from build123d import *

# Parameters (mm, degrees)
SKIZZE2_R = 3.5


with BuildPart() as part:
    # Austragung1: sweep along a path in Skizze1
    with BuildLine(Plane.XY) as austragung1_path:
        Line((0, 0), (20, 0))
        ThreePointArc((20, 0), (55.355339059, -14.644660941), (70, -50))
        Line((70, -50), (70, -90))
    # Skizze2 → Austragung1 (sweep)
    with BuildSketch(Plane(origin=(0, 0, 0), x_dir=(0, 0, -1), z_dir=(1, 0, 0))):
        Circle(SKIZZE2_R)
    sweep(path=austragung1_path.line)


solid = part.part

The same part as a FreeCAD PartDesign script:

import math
import FreeCAD as App
import Part
import Sketcher

V = App.Vector

doc = App.newDocument("Part")
body = doc.addObject("PartDesign::Body", "Body")

# Sketch on YZ plane
sketch1 = body.newObject("Sketcher::SketchObject", "Sketch")
sketch1.AttachmentSupport = (doc.getObject("YZ_Plane"), [""])
sketch1.MapMode = "FlatFace"
sketch1.addGeometry(Part.Circle(V(0, 0, 0), V(0, 0, 1), 3.5), False)
sketch1.addConstraint(Sketcher.Constraint("Coincident", 0, 3, -1, 1))
sketch1.addConstraint(Sketcher.Constraint("Diameter", 0, 7.0))

# Sketch on XY plane
sketch2 = body.newObject("Sketcher::SketchObject", "Sketch001")
sketch2.AttachmentSupport = (doc.getObject("XY_Plane"), [""])
sketch2.MapMode = "FlatFace"
sketch2.addGeometry(Part.LineSegment(V(0, 0, 0), V(20, 0, 0)), False)
sketch2.addGeometry(Part.ArcOfCircle(Part.Circle(V(20, -50, 0), V(0, 0, 1), 50), math.radians(0), math.radians(90)), False)
sketch2.addGeometry(Part.LineSegment(V(70, -50, 0), V(70, -90, 0)), False)
sketch2.addConstraint(Sketcher.Constraint("Tangent", 0, 2, 1, 2))
sketch2.addConstraint(Sketcher.Constraint("Tangent", 1, 1, 2, 1))
sketch2.addConstraint(Sketcher.Constraint("Horizontal", 0))
sketch2.addConstraint(Sketcher.Constraint("Vertical", 2))
sketch2.addConstraint(Sketcher.Constraint("Coincident", 0, 1, -1, 1))
sketch2.addConstraint(Sketcher.Constraint("Radius", 1, 50.0))
sketch2.addConstraint(Sketcher.Constraint("DistanceX", 0, 1, 0, 2, 20.0))
sketch2.addConstraint(Sketcher.Constraint("DistanceY", 2, 2, 2, 1, 40.0))
doc.recompute()

additivepipe = body.newObject("PartDesign::AdditivePipe", "AdditivePipe")
additivepipe.Profile = sketch1
additivepipe.Spine = (sketch2, ["Edge1", "Edge2", "Edge3"])

doc.recompute()
